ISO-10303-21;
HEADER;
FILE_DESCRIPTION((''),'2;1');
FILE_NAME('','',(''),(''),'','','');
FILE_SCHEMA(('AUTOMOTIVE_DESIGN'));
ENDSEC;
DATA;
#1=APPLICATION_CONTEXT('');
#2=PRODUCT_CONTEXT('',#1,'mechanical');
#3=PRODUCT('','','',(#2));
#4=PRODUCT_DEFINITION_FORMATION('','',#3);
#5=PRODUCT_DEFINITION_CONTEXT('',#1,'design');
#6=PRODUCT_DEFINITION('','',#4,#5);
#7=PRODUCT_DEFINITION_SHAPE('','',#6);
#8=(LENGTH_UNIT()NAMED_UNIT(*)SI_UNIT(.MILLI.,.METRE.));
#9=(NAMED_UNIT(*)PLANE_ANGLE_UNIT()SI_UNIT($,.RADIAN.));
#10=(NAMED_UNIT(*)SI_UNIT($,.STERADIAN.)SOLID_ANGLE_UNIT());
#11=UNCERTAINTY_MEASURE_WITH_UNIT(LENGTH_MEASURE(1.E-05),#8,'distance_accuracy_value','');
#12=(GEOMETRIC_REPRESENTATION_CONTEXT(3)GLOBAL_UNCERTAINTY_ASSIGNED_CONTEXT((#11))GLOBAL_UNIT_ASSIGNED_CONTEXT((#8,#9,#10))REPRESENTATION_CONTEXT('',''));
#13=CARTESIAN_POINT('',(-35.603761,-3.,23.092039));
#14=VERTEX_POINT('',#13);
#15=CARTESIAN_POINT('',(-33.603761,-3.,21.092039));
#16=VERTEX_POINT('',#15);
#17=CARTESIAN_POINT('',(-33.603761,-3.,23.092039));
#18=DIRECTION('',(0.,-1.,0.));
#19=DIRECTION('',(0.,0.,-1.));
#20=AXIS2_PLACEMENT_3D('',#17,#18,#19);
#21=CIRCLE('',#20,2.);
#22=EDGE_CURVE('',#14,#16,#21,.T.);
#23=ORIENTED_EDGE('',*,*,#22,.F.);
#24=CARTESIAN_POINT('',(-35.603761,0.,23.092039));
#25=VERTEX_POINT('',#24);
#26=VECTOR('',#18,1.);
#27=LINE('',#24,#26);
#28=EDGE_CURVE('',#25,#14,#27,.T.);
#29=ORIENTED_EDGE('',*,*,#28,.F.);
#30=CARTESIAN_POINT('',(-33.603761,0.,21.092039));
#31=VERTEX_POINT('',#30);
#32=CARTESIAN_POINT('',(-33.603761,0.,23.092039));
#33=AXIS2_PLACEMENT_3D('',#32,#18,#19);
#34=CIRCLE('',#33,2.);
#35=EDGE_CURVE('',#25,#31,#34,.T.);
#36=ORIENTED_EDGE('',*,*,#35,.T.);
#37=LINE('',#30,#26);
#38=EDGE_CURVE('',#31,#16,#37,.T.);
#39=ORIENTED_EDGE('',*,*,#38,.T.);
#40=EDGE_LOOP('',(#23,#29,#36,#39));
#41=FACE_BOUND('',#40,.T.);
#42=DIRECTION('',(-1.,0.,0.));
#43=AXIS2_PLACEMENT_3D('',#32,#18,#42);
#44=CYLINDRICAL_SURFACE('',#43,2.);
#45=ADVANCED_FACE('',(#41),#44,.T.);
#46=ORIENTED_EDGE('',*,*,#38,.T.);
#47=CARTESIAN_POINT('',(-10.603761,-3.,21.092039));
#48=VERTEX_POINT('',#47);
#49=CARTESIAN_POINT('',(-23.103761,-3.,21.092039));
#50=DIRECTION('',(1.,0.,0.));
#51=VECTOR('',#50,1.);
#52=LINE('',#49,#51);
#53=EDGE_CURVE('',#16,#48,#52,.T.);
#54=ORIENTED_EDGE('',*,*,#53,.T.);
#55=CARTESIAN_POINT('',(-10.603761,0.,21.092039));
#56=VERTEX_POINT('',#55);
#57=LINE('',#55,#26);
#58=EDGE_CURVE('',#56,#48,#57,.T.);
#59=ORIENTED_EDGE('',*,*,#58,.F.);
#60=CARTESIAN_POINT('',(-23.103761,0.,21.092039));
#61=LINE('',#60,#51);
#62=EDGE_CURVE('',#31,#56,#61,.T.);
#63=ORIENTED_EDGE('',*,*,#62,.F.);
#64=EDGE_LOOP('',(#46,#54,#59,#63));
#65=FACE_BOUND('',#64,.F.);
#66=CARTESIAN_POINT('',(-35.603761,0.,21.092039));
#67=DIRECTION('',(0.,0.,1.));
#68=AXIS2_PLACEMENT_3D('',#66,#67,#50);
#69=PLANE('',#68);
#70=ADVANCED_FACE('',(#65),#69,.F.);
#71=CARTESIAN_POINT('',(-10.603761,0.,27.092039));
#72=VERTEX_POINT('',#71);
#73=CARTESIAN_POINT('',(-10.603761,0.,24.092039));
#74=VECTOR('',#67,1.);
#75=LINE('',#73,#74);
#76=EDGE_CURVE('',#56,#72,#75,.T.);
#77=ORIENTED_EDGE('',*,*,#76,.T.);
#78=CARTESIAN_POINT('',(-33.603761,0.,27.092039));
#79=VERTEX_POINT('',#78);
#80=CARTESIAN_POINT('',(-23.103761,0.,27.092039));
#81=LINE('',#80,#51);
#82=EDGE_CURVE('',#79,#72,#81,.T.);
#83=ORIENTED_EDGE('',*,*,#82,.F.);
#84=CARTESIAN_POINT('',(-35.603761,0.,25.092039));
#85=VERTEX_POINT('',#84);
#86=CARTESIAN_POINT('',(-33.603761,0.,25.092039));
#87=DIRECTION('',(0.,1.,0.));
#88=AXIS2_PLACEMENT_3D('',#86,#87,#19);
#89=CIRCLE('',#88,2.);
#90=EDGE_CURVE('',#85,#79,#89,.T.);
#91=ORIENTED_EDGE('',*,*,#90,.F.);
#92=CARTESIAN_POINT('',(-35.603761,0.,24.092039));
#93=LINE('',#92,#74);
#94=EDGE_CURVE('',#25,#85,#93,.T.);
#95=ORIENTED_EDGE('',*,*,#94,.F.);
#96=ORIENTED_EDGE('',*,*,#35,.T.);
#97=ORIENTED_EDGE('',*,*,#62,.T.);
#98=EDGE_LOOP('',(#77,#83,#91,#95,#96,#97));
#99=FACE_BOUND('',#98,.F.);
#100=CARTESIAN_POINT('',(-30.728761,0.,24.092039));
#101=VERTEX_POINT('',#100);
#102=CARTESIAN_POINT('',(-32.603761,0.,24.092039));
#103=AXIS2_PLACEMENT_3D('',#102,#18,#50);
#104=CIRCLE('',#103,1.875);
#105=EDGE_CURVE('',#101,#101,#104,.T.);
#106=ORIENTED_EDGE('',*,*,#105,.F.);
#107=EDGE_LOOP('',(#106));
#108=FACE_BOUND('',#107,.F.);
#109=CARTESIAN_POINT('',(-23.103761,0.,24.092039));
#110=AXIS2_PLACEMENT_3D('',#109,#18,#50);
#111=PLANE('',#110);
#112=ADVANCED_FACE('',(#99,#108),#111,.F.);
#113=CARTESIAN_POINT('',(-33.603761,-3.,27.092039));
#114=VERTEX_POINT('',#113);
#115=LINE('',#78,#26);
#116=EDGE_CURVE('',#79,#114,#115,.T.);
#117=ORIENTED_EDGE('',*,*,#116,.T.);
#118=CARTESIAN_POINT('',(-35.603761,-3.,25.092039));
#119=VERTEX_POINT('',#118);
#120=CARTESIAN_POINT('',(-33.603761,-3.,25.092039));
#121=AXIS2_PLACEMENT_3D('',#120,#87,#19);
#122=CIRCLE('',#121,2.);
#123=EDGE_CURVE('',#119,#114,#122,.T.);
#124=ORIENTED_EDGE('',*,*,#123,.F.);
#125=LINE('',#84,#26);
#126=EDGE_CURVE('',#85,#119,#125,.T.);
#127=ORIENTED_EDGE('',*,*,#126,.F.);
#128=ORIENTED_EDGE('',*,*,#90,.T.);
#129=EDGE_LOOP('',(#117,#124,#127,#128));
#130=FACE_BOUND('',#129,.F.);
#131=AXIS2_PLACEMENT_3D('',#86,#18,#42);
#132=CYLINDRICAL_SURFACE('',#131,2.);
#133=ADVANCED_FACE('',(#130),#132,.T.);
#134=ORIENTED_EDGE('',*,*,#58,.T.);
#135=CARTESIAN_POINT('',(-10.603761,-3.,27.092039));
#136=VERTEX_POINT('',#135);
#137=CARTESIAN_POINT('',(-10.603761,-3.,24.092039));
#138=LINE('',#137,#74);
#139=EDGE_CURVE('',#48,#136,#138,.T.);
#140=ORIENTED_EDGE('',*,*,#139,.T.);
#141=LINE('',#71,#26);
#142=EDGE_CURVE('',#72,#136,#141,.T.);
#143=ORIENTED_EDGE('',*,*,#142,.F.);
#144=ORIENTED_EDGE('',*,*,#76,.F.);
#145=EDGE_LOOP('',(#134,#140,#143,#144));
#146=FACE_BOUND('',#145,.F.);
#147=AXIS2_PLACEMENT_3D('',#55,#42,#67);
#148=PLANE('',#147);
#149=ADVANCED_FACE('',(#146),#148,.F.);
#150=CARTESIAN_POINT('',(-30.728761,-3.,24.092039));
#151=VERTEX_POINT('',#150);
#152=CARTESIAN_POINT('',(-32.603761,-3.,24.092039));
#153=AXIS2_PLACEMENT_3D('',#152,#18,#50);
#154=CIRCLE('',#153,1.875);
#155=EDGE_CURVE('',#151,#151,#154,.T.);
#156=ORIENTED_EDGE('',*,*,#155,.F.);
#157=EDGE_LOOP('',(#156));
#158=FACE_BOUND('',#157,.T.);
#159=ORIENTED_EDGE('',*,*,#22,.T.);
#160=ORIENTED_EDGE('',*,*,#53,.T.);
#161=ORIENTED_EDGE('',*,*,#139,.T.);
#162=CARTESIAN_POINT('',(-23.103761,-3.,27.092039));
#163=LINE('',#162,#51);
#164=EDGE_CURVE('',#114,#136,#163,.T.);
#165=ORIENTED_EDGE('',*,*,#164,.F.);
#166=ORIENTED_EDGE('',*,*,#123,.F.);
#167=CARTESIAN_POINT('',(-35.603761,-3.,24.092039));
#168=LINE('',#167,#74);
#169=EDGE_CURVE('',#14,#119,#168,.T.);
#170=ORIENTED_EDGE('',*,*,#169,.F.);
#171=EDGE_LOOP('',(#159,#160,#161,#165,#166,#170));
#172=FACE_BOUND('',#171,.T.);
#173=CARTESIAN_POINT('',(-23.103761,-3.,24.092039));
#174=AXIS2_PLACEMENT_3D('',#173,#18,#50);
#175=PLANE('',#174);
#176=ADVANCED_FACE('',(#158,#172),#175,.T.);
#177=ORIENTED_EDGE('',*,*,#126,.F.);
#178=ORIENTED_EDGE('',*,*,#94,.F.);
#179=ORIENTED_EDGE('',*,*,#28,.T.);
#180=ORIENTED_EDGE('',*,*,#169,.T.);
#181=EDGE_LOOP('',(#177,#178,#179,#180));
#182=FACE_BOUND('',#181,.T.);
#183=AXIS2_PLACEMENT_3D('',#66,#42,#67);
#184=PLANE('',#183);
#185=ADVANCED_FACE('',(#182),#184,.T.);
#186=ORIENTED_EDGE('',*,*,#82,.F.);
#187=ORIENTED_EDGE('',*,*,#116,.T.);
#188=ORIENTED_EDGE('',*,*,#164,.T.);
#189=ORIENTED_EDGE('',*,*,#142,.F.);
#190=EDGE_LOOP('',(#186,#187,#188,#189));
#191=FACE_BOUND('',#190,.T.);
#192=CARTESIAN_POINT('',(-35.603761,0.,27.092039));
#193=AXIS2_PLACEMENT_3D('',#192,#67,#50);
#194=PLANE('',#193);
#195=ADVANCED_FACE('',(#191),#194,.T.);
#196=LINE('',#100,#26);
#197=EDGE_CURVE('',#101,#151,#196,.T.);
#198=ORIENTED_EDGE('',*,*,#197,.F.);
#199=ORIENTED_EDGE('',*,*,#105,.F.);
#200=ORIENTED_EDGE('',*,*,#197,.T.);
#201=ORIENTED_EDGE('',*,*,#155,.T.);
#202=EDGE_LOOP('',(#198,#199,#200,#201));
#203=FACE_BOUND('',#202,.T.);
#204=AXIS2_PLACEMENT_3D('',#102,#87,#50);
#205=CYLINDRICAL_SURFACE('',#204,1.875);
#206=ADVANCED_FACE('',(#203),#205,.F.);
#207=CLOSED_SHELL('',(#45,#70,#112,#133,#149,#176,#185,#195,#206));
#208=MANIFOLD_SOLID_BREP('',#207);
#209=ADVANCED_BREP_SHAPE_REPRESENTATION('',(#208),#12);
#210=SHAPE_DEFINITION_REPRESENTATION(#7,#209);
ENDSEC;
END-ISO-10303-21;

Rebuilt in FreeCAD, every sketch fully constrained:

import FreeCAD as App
import Part
import Sketcher
from FreeCAD import Vector
Q = App.Units.Quantity


def edges_at(feature, points):
    """Names of the edges that pass closest to the given points."""
    edges = feature.Shape.Edges
    near = lambda p: min(range(len(edges)), key=lambda i: edges[i].distToShape(Part.Vertex(*p))[0])
    return sorted({f"Edge{near(p) + 1}" for p in points})


def add_polygon(sketch, points):
    """Adds a closed chain of lines whose ends are joined by coincident constraints."""
    first, n = sketch.GeometryCount, len(points)
    for a, b in zip(points, points[1:] + points[:1]):
        sketch.addGeometry(Part.LineSegment(App.Vector(*a, 0), App.Vector(*b, 0)), False)
    for i in range(n):
        sketch.addConstraint(Sketcher.Constraint("Coincident", first + i, 2, first + (i + 1) % n, 1))

doc = App.newDocument("Part")
body = doc.addObject("PartDesign::Body", "Body")

# Sketch on XZ plane
sketch1 = body.newObject("Sketcher::SketchObject", "Sketch")
sketch1.AttachmentSupport = (doc.getObject("XZ_Plane"), [""])
sketch1.MapMode = "FlatFace"
add_polygon(sketch1, [(-35.603761, 27.092039), (-35.603761, 21.092039), (-10.603761, 21.092039), (-10.603761, 27.092039)])  # lines 0-3
sketch1.addGeometry(Part.Circle(Vector(-32.603761, 24.092039, 0), Vector(0, 0, 1), 1.875), False)  # 4
sketch1.addConstraint(Sketcher.Constraint("Vertical", 0))
sketch1.addConstraint(Sketcher.Constraint("Horizontal", 1))
sketch1.addConstraint(Sketcher.Constraint("Vertical", 2))
sketch1.addConstraint(Sketcher.Constraint("Horizontal", 3))
sketch1.addConstraint(Sketcher.Constraint("Diameter", 4, Q("3.75 mm")))
sketch1.addConstraint(Sketcher.Constraint("DistanceX", 1, 1, 1, 2, Q("25 mm")))
sketch1.addConstraint(Sketcher.Constraint("DistanceY", 0, 2, 0, 1, Q("6 mm")))
sketch1.addConstraint(Sketcher.Constraint("DistanceX", 0, 2, 4, 3, Q("3 mm")))
sketch1.addConstraint(Sketcher.Constraint("DistanceY", 0, 2, 4, 3, Q("3 mm")))
sketch1.addConstraint(Sketcher.Constraint("DistanceX", 4, 3, -1, 1, Q("32.603761 mm")))
sketch1.addConstraint(Sketcher.Constraint("DistanceY", -1, 1, 4, 3, Q("24.092039 mm")))
pad1 = body.newObject("PartDesign::Pad", "Pad")
pad1.Profile = sketch1
pad1.Length = 3
doc.recompute()

fillet = body.newObject("PartDesign::Fillet", "Fillet")
fillet.Base = (pad1, edges_at(pad1, [(-35.604, -1.5, 27.092), (-35.604, -1.5, 21.092)]))
fillet.Radius = 2

doc.recompute()
